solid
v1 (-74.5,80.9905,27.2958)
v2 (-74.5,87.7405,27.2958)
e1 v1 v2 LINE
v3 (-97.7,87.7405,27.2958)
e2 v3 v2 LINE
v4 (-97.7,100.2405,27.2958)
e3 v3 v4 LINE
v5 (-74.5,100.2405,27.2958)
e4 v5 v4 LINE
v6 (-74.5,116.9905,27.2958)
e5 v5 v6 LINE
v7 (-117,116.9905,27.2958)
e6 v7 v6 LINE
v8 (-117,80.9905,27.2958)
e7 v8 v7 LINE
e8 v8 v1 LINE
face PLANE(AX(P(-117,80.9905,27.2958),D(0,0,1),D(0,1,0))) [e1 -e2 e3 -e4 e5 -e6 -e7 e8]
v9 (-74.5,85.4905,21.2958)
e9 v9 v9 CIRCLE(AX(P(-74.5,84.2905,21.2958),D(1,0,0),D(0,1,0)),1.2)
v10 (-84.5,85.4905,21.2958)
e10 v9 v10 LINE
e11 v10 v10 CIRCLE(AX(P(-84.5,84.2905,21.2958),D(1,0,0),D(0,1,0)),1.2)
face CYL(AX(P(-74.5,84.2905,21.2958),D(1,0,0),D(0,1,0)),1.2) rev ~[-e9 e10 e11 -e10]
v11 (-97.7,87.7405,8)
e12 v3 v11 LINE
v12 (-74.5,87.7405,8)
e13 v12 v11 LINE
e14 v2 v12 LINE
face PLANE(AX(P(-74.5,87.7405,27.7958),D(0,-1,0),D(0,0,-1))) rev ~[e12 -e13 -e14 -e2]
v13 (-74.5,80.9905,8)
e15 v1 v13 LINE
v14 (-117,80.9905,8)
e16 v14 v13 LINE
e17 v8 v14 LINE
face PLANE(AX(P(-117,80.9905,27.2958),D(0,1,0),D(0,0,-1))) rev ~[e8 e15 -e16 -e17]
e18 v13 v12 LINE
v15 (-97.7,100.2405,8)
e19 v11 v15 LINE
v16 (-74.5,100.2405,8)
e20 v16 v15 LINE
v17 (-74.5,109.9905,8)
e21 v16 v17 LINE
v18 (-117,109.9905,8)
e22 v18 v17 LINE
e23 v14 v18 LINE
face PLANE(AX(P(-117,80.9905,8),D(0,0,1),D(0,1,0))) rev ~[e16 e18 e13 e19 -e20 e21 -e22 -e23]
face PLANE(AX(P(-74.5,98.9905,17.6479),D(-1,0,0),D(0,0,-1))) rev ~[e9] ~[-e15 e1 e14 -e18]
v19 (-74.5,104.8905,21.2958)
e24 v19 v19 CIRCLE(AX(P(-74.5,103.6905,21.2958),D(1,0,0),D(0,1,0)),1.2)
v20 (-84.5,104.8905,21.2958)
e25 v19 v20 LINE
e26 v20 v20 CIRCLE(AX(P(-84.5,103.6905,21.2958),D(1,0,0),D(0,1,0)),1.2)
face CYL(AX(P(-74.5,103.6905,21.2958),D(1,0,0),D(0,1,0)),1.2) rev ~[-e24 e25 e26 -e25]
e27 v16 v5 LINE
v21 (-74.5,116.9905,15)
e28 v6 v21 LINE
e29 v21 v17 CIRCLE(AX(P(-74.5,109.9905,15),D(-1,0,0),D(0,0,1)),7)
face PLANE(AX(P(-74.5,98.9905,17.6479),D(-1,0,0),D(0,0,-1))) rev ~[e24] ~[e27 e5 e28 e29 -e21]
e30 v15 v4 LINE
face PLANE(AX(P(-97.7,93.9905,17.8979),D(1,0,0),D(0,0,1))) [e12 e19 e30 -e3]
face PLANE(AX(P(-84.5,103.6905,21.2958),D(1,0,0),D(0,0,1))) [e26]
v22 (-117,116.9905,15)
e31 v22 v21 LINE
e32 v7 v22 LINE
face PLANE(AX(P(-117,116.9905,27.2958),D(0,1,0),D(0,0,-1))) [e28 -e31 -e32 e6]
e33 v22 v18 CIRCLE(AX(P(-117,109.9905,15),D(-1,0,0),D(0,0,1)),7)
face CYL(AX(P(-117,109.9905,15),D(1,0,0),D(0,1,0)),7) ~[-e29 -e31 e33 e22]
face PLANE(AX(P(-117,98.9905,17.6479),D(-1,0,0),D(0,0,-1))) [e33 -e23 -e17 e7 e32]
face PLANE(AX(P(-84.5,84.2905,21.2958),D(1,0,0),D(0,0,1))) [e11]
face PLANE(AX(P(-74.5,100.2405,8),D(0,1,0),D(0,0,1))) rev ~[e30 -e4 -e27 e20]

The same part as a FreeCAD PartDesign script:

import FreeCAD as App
import Part
import Sketcher

V = App.Vector


def edges_at(feature, points):
    """Names of the edges that pass closest to the given points."""
    edges = feature.Shape.Edges
    near = lambda p: min(range(len(edges)), key=lambda i: edges[i].distToShape(Part.Vertex(*p))[0])
    return sorted({f"Edge{near(p) + 1}" for p in points})

doc = App.newDocument("Part")
params = doc.addObject("Spreadsheet::Sheet", "Params")
for row, (alias, value) in enumerate([
    ("sketch1_width", "36 mm"),
    ("pad1_length", "42.5 mm"),
    ("fillet_radius", "7 mm"),
    ("sketch2_width", "12.5 mm"),
    ("pocket1_length", "23.2 mm"),
    ("sketch3_diameter", "2.4 mm"),
    ("pocket2_length", "10 mm"),
], start=1):
    params.set(f"A{row}", alias)
    params.set(f"B{row}", "=" + value)
    params.setAlias(f"B{row}", alias)

body = doc.addObject("PartDesign::Body", "Body")

sketch1 = body.newObject("Sketcher::SketchObject", "Sketch")
sketch1.AttachmentSupport = (doc.getObject("YZ_Plane"), [""])
sketch1.MapMode = "FlatFace"
sketch1.AttachmentOffset = App.Placement(V(0, 0, -117), App.Rotation())
sketch1.addGeometry(Part.LineSegment(V(117, 27, 0), V(81, 27, 0)), False)
sketch1.addGeometry(Part.LineSegment(V(81, 27, 0), V(81, 8, 0)), False)
sketch1.addGeometry(Part.LineSegment(V(81, 8, 0), V(117, 8, 0)), False)
sketch1.addGeometry(Part.LineSegment(V(117, 8, 0), V(117, 27, 0)), False)
sketch1.addConstraint(Sketcher.Constraint("Coincident", 0, 2, 1, 1))
sketch1.addConstraint(Sketcher.Constraint("Coincident", 1, 2, 2, 1))
sketch1.addConstraint(Sketcher.Constraint("Coincident", 2, 2, 3, 1))
sketch1.addConstraint(Sketcher.Constraint("Coincident", 3, 2, 0, 1))
sketch1.addConstraint(Sketcher.Constraint("Horizontal", 0))
sketch1.addConstraint(Sketcher.Constraint("Vertical", 1))
sketch1.addConstraint(Sketcher.Constraint("Horizontal", 2))
sketch1.addConstraint(Sketcher.Constraint("Vertical", 3))
sketch1.addConstraint(Sketcher.Constraint("DistanceX", 0, 2, 0, 1, 36.0))
sketch1.addConstraint(Sketcher.Constraint("DistanceY", -1, 1, 1, 2, 8.0))
sketch1.addConstraint(Sketcher.Constraint("DistanceY", 1, 2, 1, 1, 19.2958))
sketch1.addConstraint(Sketcher.Constraint("DistanceX", -1, 1, 0, 2, 80.9905))
sketch1.setExpression("Constraints[8]", "Params.sketch1_width")
pad1 = body.newObject("PartDesign::Pad", "Pad")
pad1.Profile = sketch1
pad1.setExpression("Length", "Params.pad1_length")
doc.recompute()

fillet = body.newObject("PartDesign::Fillet", "Fillet")
fillet.Base = (pad1, edges_at(pad1, [(-95.75, 116.99, 8)]))
fillet.setExpression("Radius", "Params.fillet_radius")

sketch2 = body.newObject("Sketcher::SketchObject", "Sketch001")
sketch2.AttachmentSupport = (doc.getObject("YZ_Plane"), [""])
sketch2.MapMode = "FlatFace"
sketch2.AttachmentOffset = App.Placement(V(0, 0, -74.5), App.Rotation())
sketch2.addGeometry(Part.LineSegment(V(100, 28, 0), V(88, 28, 0)), False)
sketch2.addGeometry(Part.LineSegment(V(88, 28, 0), V(88, 8, 0)), False)
sketch2.addGeometry(Part.LineSegment(V(88, 8, 0), V(100, 8, 0)), False)
sketch2.addGeometry(Part.LineSegment(V(100, 8, 0), V(100, 28, 0)), False)
sketch2.addConstraint(Sketcher.Constraint("Coincident", 0, 2, 1, 1))
sketch2.addConstraint(Sketcher.Constraint("Coincident", 1, 2, 2, 1))
sketch2.addConstraint(Sketcher.Constraint("Coincident", 2, 2, 3, 1))
sketch2.addConstraint(Sketcher.Constraint("Coincident", 3, 2, 0, 1))
sketch2.addConstraint(Sketcher.Constraint("Horizontal", 0))
sketch2.addConstraint(Sketcher.Constraint("Vertical", 1))
sketch2.addConstraint(Sketcher.Constraint("Horizontal", 2))
sketch2.addConstraint(Sketcher.Constraint("Vertical", 3))
sketch2.addConstraint(Sketcher.Constraint("DistanceX", 0, 2, 0, 1, 12.5))
sketch2.addConstraint(Sketcher.Constraint("DistanceY", -1, 1, 1, 2, 8.0))
sketch2.addConstraint(Sketcher.Constraint("DistanceY", 1, 2, 1, 1, 19.7958))
sketch2.addConstraint(Sketcher.Constraint("DistanceX", -1, 1, 0, 2, 87.7405))
sketch2.setExpression("Constraints[8]", "Params.sketch2_width")
pocket1 = body.newObject("PartDesign::Pocket", "Pocket")
pocket1.Profile = sketch2
pocket1.setExpression("Length", "Params.pocket1_length")

sketch3 = body.newObject("Sketcher::SketchObject", "Sketch002")
sketch3.AttachmentSupport = (doc.getObject("YZ_Plane"), [""])
sketch3.MapMode = "FlatFace"
sketch3.AttachmentOffset = App.Placement(V(0, 0, -74.5), App.Rotation())
sketch3.addGeometry(Part.Circle(V(84.3, 21.3, 0), V(0, 0, 1), 1.2), False)
sketch3.addGeometry(Part.Circle(V(103.7, 21.3, 0), V(0, 0, 1), 1.2), False)
sketch3.addConstraint(Sketcher.Constraint("Equal", 0, 1))
sketch3.addConstraint(Sketcher.Constraint("Horizontal", 0, 3, 1, 3))
sketch3.addConstraint(Sketcher.Constraint("Diameter", 0, 2.4))
sketch3.addConstraint(Sketcher.Constraint("DistanceX", 0, 3, 1, 3, 19.4))
sketch3.addConstraint(Sketcher.Constraint("DistanceX", -1, 1, 0, 3, 84.2905))
sketch3.addConstraint(Sketcher.Constraint("DistanceY", -1, 1, 0, 3, 21.2958))
sketch3.setExpression("Constraints[2]", "Params.sketch3_diameter")
pocket2 = body.newObject("PartDesign::Pocket", "Pocket001")
pocket2.Profile = sketch3
pocket2.setExpression("Length", "Params.pocket2_length")

doc.recompute()
